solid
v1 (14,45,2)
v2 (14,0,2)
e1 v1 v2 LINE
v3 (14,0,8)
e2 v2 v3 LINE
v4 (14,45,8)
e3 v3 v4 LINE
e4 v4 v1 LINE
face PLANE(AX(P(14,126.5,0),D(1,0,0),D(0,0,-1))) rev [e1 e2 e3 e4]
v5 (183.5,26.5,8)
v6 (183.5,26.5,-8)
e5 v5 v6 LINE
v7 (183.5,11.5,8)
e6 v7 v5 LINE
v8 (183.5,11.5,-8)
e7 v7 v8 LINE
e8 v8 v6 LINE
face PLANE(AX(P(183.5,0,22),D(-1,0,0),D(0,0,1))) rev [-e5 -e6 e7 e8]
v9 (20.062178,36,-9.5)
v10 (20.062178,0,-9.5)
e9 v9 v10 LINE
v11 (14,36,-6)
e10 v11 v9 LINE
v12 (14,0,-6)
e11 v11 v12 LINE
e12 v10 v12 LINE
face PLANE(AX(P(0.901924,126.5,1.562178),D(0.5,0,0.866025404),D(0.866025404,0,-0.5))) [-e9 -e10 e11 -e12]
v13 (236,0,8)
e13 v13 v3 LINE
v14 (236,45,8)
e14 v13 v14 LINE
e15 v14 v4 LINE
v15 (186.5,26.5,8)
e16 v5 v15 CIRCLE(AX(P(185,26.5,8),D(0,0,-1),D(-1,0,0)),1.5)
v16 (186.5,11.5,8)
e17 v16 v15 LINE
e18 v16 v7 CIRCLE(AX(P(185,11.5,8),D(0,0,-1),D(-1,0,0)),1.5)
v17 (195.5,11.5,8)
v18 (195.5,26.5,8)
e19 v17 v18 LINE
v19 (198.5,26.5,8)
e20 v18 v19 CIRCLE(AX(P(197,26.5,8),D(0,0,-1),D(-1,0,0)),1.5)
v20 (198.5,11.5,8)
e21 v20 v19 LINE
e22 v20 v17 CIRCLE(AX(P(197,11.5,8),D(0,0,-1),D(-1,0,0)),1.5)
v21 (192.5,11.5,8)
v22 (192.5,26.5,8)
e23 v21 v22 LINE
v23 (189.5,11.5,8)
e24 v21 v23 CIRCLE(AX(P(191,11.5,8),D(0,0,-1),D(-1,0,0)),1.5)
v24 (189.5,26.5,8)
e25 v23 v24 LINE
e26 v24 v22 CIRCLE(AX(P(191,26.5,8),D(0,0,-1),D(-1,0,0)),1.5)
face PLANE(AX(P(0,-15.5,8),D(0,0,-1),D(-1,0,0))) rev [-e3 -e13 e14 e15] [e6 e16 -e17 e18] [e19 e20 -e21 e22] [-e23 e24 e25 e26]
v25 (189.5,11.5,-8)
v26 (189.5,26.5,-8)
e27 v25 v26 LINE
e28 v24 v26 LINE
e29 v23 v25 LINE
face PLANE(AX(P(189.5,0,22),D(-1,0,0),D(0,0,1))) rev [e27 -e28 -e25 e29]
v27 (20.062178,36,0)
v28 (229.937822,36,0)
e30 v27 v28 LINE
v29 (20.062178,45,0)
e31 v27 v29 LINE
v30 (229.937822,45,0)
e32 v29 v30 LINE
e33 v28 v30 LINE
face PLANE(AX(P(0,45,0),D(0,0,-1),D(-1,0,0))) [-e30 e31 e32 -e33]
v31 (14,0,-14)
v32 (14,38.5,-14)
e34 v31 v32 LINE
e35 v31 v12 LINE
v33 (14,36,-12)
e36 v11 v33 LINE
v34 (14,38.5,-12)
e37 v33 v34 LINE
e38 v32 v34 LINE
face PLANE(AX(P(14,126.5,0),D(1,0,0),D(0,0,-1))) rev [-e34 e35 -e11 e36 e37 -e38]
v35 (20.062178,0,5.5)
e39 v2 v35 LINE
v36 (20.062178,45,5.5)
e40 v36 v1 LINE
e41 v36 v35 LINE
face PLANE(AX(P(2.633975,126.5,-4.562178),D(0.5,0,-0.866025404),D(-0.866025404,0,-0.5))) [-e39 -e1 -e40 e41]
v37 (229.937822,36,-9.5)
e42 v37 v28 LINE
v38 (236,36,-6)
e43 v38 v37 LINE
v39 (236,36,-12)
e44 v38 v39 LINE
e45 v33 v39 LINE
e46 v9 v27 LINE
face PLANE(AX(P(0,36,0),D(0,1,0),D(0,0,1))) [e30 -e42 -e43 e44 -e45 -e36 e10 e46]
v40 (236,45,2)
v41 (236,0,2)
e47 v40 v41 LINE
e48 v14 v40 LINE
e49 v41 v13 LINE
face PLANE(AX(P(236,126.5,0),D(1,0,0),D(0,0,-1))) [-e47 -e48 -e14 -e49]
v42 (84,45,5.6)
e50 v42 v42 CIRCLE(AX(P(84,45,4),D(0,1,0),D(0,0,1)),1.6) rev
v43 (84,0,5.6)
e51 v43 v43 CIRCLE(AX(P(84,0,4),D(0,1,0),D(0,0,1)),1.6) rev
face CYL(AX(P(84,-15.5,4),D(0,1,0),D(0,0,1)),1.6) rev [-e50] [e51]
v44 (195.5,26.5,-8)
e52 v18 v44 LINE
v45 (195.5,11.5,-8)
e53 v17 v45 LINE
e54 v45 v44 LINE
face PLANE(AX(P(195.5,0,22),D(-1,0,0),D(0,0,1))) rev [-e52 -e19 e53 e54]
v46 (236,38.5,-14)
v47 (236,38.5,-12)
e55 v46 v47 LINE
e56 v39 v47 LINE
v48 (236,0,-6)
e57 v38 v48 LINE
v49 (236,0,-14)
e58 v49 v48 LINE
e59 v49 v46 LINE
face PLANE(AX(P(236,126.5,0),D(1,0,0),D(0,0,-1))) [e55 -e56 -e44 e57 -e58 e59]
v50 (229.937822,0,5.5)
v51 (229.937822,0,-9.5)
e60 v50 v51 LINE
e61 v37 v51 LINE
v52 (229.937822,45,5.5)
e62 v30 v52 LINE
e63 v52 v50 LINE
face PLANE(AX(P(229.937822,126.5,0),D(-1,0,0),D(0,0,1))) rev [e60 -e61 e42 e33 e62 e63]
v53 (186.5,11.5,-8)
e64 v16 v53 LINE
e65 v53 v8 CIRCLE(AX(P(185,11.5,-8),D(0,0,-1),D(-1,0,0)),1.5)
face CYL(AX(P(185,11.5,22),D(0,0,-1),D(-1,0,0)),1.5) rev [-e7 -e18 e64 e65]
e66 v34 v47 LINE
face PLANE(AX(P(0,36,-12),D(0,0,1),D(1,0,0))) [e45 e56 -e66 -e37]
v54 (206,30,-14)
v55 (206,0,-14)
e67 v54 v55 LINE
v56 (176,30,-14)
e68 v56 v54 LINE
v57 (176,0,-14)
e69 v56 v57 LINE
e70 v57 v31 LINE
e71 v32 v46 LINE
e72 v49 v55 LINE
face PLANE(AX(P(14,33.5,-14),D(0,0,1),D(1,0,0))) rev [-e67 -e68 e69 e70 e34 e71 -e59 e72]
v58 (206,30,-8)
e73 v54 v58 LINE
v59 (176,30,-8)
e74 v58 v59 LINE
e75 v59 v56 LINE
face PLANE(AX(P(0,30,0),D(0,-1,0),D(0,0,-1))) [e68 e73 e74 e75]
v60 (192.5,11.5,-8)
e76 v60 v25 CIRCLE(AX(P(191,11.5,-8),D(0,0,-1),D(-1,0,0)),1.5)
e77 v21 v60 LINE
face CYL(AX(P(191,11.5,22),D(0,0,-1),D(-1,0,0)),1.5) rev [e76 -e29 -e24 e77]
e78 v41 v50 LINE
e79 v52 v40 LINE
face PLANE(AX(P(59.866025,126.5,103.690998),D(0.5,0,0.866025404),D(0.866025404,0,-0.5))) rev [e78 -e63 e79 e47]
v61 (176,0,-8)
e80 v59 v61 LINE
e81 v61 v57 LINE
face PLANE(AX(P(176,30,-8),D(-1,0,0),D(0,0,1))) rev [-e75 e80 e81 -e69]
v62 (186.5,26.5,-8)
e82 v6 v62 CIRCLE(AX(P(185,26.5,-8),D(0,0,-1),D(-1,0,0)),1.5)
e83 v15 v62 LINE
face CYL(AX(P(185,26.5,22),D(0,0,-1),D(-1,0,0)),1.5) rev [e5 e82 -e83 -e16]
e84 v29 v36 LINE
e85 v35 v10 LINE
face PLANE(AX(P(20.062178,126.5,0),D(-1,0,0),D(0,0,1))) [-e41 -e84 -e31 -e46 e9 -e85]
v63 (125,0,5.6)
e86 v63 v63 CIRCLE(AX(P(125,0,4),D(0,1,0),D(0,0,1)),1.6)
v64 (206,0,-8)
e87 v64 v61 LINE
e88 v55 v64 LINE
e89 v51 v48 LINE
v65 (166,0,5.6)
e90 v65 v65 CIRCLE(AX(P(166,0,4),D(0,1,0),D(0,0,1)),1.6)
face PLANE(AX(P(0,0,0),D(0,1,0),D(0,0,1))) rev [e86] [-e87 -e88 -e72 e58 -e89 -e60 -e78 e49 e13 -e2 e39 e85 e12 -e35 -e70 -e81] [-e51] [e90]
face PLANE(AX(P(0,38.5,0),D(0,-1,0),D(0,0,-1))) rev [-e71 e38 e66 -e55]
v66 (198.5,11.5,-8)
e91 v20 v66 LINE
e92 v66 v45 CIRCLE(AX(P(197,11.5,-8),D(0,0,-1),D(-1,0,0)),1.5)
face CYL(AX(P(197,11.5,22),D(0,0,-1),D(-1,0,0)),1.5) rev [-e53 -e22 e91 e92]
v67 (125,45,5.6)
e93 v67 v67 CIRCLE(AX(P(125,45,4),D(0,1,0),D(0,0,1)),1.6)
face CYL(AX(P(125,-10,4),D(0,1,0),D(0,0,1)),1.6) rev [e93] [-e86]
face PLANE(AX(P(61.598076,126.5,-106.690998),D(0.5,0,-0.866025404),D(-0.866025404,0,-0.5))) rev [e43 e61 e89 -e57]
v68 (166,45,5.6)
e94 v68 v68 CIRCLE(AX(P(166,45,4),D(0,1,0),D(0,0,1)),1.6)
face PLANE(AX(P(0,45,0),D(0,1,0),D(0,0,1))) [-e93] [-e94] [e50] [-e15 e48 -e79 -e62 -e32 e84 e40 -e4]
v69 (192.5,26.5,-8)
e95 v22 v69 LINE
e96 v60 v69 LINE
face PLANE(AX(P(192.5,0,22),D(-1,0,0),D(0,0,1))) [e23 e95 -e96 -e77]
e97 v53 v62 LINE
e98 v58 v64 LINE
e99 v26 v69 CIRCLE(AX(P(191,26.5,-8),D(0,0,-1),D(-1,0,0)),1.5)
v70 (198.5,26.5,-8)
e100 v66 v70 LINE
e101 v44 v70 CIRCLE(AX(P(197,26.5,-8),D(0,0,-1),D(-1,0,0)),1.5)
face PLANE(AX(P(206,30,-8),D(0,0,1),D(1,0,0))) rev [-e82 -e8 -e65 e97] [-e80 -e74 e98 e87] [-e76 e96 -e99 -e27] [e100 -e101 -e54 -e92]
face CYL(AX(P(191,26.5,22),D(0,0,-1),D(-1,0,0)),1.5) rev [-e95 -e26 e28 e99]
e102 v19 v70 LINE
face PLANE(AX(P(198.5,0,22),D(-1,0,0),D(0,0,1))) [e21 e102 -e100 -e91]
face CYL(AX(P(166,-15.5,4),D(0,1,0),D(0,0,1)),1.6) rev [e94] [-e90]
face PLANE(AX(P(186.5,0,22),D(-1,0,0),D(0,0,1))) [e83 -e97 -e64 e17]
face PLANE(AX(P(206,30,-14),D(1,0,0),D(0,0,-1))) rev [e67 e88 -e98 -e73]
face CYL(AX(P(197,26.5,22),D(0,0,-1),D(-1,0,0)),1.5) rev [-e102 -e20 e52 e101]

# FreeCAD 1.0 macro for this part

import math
import FreeCAD as App
import Part
import Sketcher

V = App.Vector
Q = App.Units.Quantity


def edges_at(feature, points):
    """Names of the edges that pass closest to the given points."""
    edges = feature.Shape.Edges
    near = lambda p: min(range(len(edges)), key=lambda i: edges[i].distToShape(Part.Vertex(*p))[0])
    return sorted({f"Edge{near(p) + 1}" for p in points})


def add_polygon(sketch, points):
    """Adds a closed chain of lines whose ends are joined by coincident constraints."""
    first, n = sketch.GeometryCount, len(points)
    for a, b in zip(points, points[1:] + points[:1]):
        sketch.addGeometry(Part.LineSegment(App.Vector(*a, 0), App.Vector(*b, 0)), False)
    for i in range(n):
        sketch.addConstraint(Sketcher.Constraint("Coincident", first + i, 2, first + (i + 1) % n, 1))

doc = App.newDocument("Part")
params = doc.addObject("Spreadsheet::Sheet", "Params")
for row, (alias, value) in enumerate([
    ("sketch1_width", "270 mm"),
    ("sketch1_width2", "250 mm"),
    ("sketch1_height", "370 mm"),
    ("sketch1_height2", "350 mm"),
    ("pad1_length", "45 mm"),
    ("sketch2_width", "250 mm"),
    ("sketch2_width2", "222 mm"),
    ("sketch2_height", "350 mm"),
    ("sketch2_height2", "322 mm"),
    ("pad2_length", "5 mm"),
    ("sketch3_width", "246 mm"),
    ("sketch3_width2", "226 mm"),
    ("sketch3_height", "346 mm"),
    ("sketch3_height2", "326 mm"),
    ("pocket1_length", "2.5 mm"),
    ("sketch4_diameter", "3.2 mm"),
    ("pocket2_length", "109.5 mm"),
    ("fillet_radius", "5 mm"),
    ("sketch5_width", "250 mm"),
    ("sketch5_width2", "222 mm"),
    ("sketch5_height", "350 mm"),
    ("sketch5_height2", "322 mm"),
    ("pad3_length", "33.5 mm"),
    ("sketch6_radius", "5 mm"),
    ("sketch6_width", "19 mm"),
    ("sketch6_width2", "260 mm"),
    ("sketch6_height", "330 mm"),
    ("sketch6_height2", "15 mm"),
    ("pocket3_length", "126.5 mm"),
    ("sketch7_height", "2 mm"),
    ("pocket4_length", "2.5 mm"),
    ("sketch8_width", "222 mm"),
    ("sketch8_height", "2 mm"),
    ("pocket5_length", "60.5 mm"),
    ("sketch9_diameter", "3.2 mm"),
    ("pocket6_length", "60.5 mm"),
    ("sketch10_width", "30 mm"),
    ("sketch10_height", "6 mm"),
    ("pocket7_length", "30 mm"),
    ("sketch11_radius", "1.5 mm"),
    ("sketch11_height", "15 mm"),
    ("pocket8_length", "30 mm"),
    ("sketch12_radius", "1.6 mm"),
    ("pocket9_length", "55 mm"),
], start=1):
    params.set(f"A{row}", alias)
    params.set(f"B{row}", "=" + value)
    params.setAlias(f"B{row}", alias)

body = doc.addObject("PartDesign::Body", "Body")

# Sketch on XZ plane
sketch1 = doc.addObject("Sketcher::SketchObject", "Sketch")
body.addObject(sketch1)
sketch1.AttachmentSupport = (doc.XZ_Plane, [""])
sketch1.MapMode = "FlatFace"
add_polygon(sketch1, [(-10, -360), (-10, 10), (260, 10), (260, -360)])  # lines 0-3
add_polygon(sketch1, [(250, 0), (0, 0), (0, -350), (250, -350)])  # lines 4-7
sketch1.addConstraint(Sketcher.Constraint("Vertical", 0))
sketch1.addConstraint(Sketcher.Constraint("Horizontal", 1))
sketch1.addConstraint(Sketcher.Constraint("Vertical", 2))
sketch1.addConstraint(Sketcher.Constraint("Horizontal", 3))
sketch1.addConstraint(Sketcher.Constraint("Horizontal", 4))
sketch1.addConstraint(Sketcher.Constraint("Vertical", 5))
sketch1.addConstraint(Sketcher.Constraint("Horizontal", 6))
sketch1.addConstraint(Sketcher.Constraint("Vertical", 7))
sketch1.addConstraint(Sketcher.Constraint("Coincident", 4, 2, -1, 1))
sketch1.addConstraint(Sketcher.Constraint("DistanceX", 1, 1, 1, 2, 270.0))
sketch1.addConstraint(Sketcher.Constraint("DistanceX", 4, 2, 4, 1, 250.0))
sketch1.addConstraint(Sketcher.Constraint("DistanceY", 0, 1, 0, 2, 370.0))
sketch1.addConstraint(Sketcher.Constraint("DistanceY", 5, 2, 5, 1, 350.0))
sketch1.addConstraint(Sketcher.Constraint("DistanceX", 0, 2, -1, 1, 10.0))
sketch1.addConstraint(Sketcher.Constraint("DistanceY", -1, 1, 0, 2, 10.0))
sketch1.setExpression("Constraints[17]", "Params.sketch1_width")
sketch1.setExpression("Constraints[18]", "Params.sketch1_width2")
sketch1.setExpression("Constraints[19]", "Params.sketch1_height")
sketch1.setExpression("Constraints[20]", "Params.sketch1_height2")
pad1 = doc.addObject("PartDesign::Pad", "Pad")
body.addObject(pad1)
pad1.Profile = sketch1
pad1.setExpression("Length", "Params.pad1_length")
pad1.Reversed = True

# Sketch on XZ plane
sketch2 = doc.addObject("Sketcher::SketchObject", "Sketch001")
body.addObject(sketch2)
sketch2.AttachmentSupport = (doc.XZ_Plane, [""])
sketch2.MapMode = "FlatFace"
sketch2.AttachmentOffset = App.Placement(V(0, 0, -38.5), App.Rotation())
add_polygon(sketch2, [(0, -350), (0, 0), (250, 0), (250, -350)])  # lines 0-3
add_polygon(sketch2, [(236, -14), (14, -14), (14, -336), (236, -336)])  # lines 4-7
sketch2.addConstraint(Sketcher.Constraint("Vertical", 0))
sketch2.addConstraint(Sketcher.Constraint("Horizontal", 1))
sketch2.addConstraint(Sketcher.Constraint("Vertical", 2))
sketch2.addConstraint(Sketcher.Constraint("Horizontal", 3))
sketch2.addConstraint(Sketcher.Constraint("Horizontal", 4))
sketch2.addConstraint(Sketcher.Constraint("Vertical", 5))
sketch2.addConstraint(Sketcher.Constraint("Horizontal", 6))
sketch2.addConstraint(Sketcher.Constraint("Vertical", 7))
sketch2.addConstraint(Sketcher.Constraint("Coincident", 0, 2, -1, 1))
sketch2.addConstraint(Sketcher.Constraint("DistanceX", 1, 1, 1, 2, 250.0))
sketch2.addConstraint(Sketcher.Constraint("DistanceX", 4, 2, 4, 1, 222.0))
sketch2.addConstraint(Sketcher.Constraint("DistanceY", 0, 1, 0, 2, 350.0))
sketch2.addConstraint(Sketcher.Constraint("DistanceY", 5, 2, 5, 1, 322.0))
sketch2.addConstraint(Sketcher.Constraint("DistanceX", -1, 1, 4, 2, 14.0))
sketch2.addConstraint(Sketcher.Constraint("DistanceY", 4, 2, -1, 1, 14.0))
sketch2.setExpression("Constraints[17]", "Params.sketch2_width")
sketch2.setExpression("Constraints[18]", "Params.sketch2_width2")
sketch2.setExpression("Constraints[19]", "Params.sketch2_height")
sketch2.setExpression("Constraints[20]", "Params.sketch2_height2")
pad2 = doc.addObject("PartDesign::Pad", "Pad001")
body.addObject(pad2)
pad2.Profile = sketch2
pad2.setExpression("Length", "Params.pad2_length")

# Sketch on XZ plane
sketch3 = doc.addObject("Sketcher::SketchObject", "Sketch002")
body.addObject(sketch3)
sketch3.AttachmentSupport = (doc.XZ_Plane, [""])
sketch3.MapMode = "FlatFace"
sketch3.AttachmentOffset = App.Placement(V(0, 0, -38.5), App.Rotation())
add_polygon(sketch3, [(2, -348), (2, -2), (248, -2), (248, -348)])  # lines 0-3
add_polygon(sketch3, [(238, -12), (12, -12), (12, -338), (238, -338)])  # lines 4-7
sketch3.addConstraint(Sketcher.Constraint("Vertical", 0))
sketch3.addConstraint(Sketcher.Constraint("Horizontal", 1))
sketch3.addConstraint(Sketcher.Constraint("Vertical", 2))
sketch3.addConstraint(Sketcher.Constraint("Horizontal", 3))
sketch3.addConstraint(Sketcher.Constraint("Horizontal", 4))
sketch3.addConstraint(Sketcher.Constraint("Vertical", 5))
sketch3.addConstraint(Sketcher.Constraint("Horizontal", 6))
sketch3.addConstraint(Sketcher.Constraint("Vertical", 7))
sketch3.addConstraint(Sketcher.Constraint("DistanceX", 1, 1, 1, 2, 246.0))
sketch3.addConstraint(Sketcher.Constraint("DistanceX", 4, 2, 4, 1, 226.0))
sketch3.addConstraint(Sketcher.Constraint("DistanceY", 0, 1, 0, 2, 346.0))
sketch3.addConstraint(Sketcher.Constraint("DistanceY", 5, 2, 5, 1, 326.0))
sketch3.addConstraint(Sketcher.Constraint("DistanceX", -1, 1, 0, 2, 2.0))
sketch3.addConstraint(Sketcher.Constraint("DistanceY", 0, 2, -1, 1, 2.0))
sketch3.addConstraint(Sketcher.Constraint("DistanceX", -1, 1, 4, 2, 12.0))
sketch3.addConstraint(Sketcher.Constraint("DistanceY", 4, 2, -1, 1, 12.0))
sketch3.setExpression("Constraints[16]", "Params.sketch3_width")
sketch3.setExpression("Constraints[17]", "Params.sketch3_width2")
sketch3.setExpression("Constraints[18]", "Params.sketch3_height")
sketch3.setExpression("Constraints[19]", "Params.sketch3_height2")
pocket1 = doc.addObject("PartDesign::Pocket", "Pocket")
body.addObject(pocket1)
pocket1.Profile = sketch3
pocket1.setExpression("Length", "Params.pocket1_length")
pocket1.Reversed = True

# Sketch on XZ plane
sketch4 = doc.addObject("Sketcher::SketchObject", "Sketch003")
body.addObject(sketch4)
sketch4.AttachmentSupport = (doc.XZ_Plane, [""])
sketch4.MapMode = "FlatFace"
sketch4.AttachmentOffset = App.Placement(V(0, 0, -45), App.Rotation())
sketch4.addGeometry(Part.Circle(V(-5, 5, 0), V(0, 0, 1), 1.6), False)
sketch4.addGeometry(Part.ArcOfCircle(Part.Circle(V(-5, -355, 0), V(0, 0, 1), 1.6), math.radians(45), math.radians(225)), False)
sketch4.addGeometry(Part.ArcOfCircle(Part.Circle(V(-5, -355, 0), V(0, 0, 1), 1.6), math.radians(0), math.radians(45)), False)
sketch4.addGeometry(Part.ArcOfCircle(Part.Circle(V(-5, -355, 0), V(0, 0, 1), 1.6), math.radians(-135), math.radians(0)), False)
sketch4.addGeometry(Part.Circle(V(255, -355, 0), V(0, 0, 1), 1.6), False)
sketch4.addGeometry(Part.Circle(V(255, 5, 0), V(0, 0, 1), 1.6), False)
sketch4.addConstraint(Sketcher.Constraint("Tangent", 1, 1, 2, 2))
sketch4.addConstraint(Sketcher.Constraint("Tangent", 2, 1, 3, 2))
sketch4.addConstraint(Sketcher.Constraint("Tangent", 3, 1, 1, 2))
sketch4.addConstraint(Sketcher.Constraint("Equal", 0, 1))
sketch4.addConstraint(Sketcher.Constraint("Equal", 3, 4))
sketch4.addConstraint(Sketcher.Constraint("Equal", 4, 5))
sketch4.addConstraint(Sketcher.Constraint("Horizontal", 3, 3, 4, 3))
sketch4.addConstraint(Sketcher.Constraint("Horizontal", 0, 3, 5, 3))
sketch4.addConstraint(Sketcher.Constraint("Horizontal", 4, 3, 2, 1))
sketch4.addConstraint(Sketcher.Constraint("Vertical", 0, 3, 1, 3))
sketch4.addConstraint(Sketcher.Constraint("Vertical", 4, 3, 5, 3))
sketch4.addConstraint(Sketcher.Constraint("Diameter", 0, 3.2))
sketch4.addConstraint(Sketcher.Constraint("DistanceX", 0, 3, -1, 1, 5.0))
sketch4.addConstraint(Sketcher.Constraint("DistanceY", -1, 1, 0, 3, 5.0))
sketch4.addConstraint(Sketcher.Constraint("DistanceY", 1, 3, -1, 1, 355.0))
sketch4.addConstraint(Sketcher.Constraint("DistanceX", -1, 1, 4, 3, 255.0))
sketch4.addConstraint(Sketcher.Constraint("DistanceX", 1, 1, -1, 1, 3.868629))
sketch4.addConstraint(Sketcher.Constraint("DistanceX", 3, 1, -1, 1, 6.131371))
sketch4.setExpression("Constraints[11]", "Params.sketch4_diameter")
pocket2 = doc.addObject("PartDesign::Pocket", "Pocket001")
body.addObject(pocket2)
pocket2.Profile = sketch4
pocket2.setExpression("Length", "Params.pocket2_length")
pocket2.Reversed = True
doc.recompute()

fillet = doc.addObject("PartDesign::Fillet", "Fillet")
body.addObject(fillet)
fillet.Base = (pocket2, edges_at(pocket2, [
    (-10, 22.5, 10),
    (-10, 22.5, -360),
    (260, 22.5, -360),
    (260, 22.5, 10),
]))
fillet.setExpression("Radius", "Params.fillet_radius")

# Sketch on XZ plane
sketch5 = doc.addObject("Sketcher::SketchObject", "Sketch004")
body.addObject(sketch5)
sketch5.AttachmentSupport = (doc.XZ_Plane, [""])
sketch5.MapMode = "FlatFace"
sketch5.AttachmentOffset = App.Placement(V(0, 0, -33.5), App.Rotation())
add_polygon(sketch5, [(0, 0), (0, -350), (250, -350), (250, 0)])  # lines 0-3
add_polygon(sketch5, [(236, -336), (14, -336), (14, -14), (236, -14)])  # lines 4-7
sketch5.addConstraint(Sketcher.Constraint("Vertical", 0))
sketch5.addConstraint(Sketcher.Constraint("Horizontal", 1))
sketch5.addConstraint(Sketcher.Constraint("Vertical", 2))
sketch5.addConstraint(Sketcher.Constraint("Horizontal", 3))
sketch5.addConstraint(Sketcher.Constraint("Horizontal", 4))
sketch5.addConstraint(Sketcher.Constraint("Vertical", 5))
sketch5.addConstraint(Sketcher.Constraint("Horizontal", 6))
sketch5.addConstraint(Sketcher.Constraint("Vertical", 7))
sketch5.addConstraint(Sketcher.Constraint("Coincident", 3, 2, -1, 1))
sketch5.addConstraint(Sketcher.Constraint("DistanceX", 1, 1, 1, 2, 250.0))
sketch5.addConstraint(Sketcher.Constraint("DistanceX", 4, 2, 4, 1, 222.0))
sketch5.addConstraint(Sketcher.Constraint("DistanceY", 0, 2, 0, 1, 350.0))
sketch5.addConstraint(Sketcher.Constraint("DistanceY", 5, 1, 5, 2, 322.0))
sketch5.addConstraint(Sketcher.Constraint("DistanceX", -1, 1, 4, 2, 14.0))
sketch5.addConstraint(Sketcher.Constraint("DistanceY", 4, 2, -1, 1, 336.0))
sketch5.setExpression("Constraints[17]", "Params.sketch5_width")
sketch5.setExpression("Constraints[18]", "Params.sketch5_width2")
sketch5.setExpression("Constraints[19]", "Params.sketch5_height")
sketch5.setExpression("Constraints[20]", "Params.sketch5_height2")
pad3 = doc.addObject("PartDesign::Pad", "Pad002")
body.addObject(pad3)
pad3.Profile = sketch5
pad3.setExpression("Length", "Params.pad3_length")

# Sketch on XZ plane
sketch6 = doc.addObject("Sketcher::SketchObject", "Sketch005")
body.addObject(sketch6)
sketch6.AttachmentSupport = (doc.XZ_Plane, [""])
sketch6.MapMode = "FlatFace"
sketch6.AttachmentOffset = App.Placement(V(0, 0, -126.5), App.Rotation())
sketch6.addGeometry(Part.LineSegment(V(14, -336, 0), V(14, -6, 0)), False)
sketch6.addGeometry(Part.LineSegment(V(14, -6, 0), V(20.062178, -9.5, 0)), False)
sketch6.addGeometry(Part.LineSegment(V(20.062178, -9.5, 0), V(20.062178, 5.5, 0)), False)
sketch6.addGeometry(Part.LineSegment(V(20.062178, 5.5, 0), V(14, 2, 0)), False)
sketch6.addGeometry(Part.LineSegment(V(14, 2, 0), V(14, 10, 0)), False)
sketch6.addGeometry(Part.LineSegment(V(14, 10, 0), V(-5, 10, 0)), False)
sketch6.addGeometry(Part.ArcOfCircle(Part.Circle(V(-5, 5, 0), V(0, 0, 1), 5), math.radians(90), math.radians(180)), False)
sketch6.addGeometry(Part.LineSegment(V(-10, 5, 0), V(-10, -355, 0)), False)
sketch6.addGeometry(Part.ArcOfCircle(Part.Circle(V(-5, -355, 0), V(0, 0, 1), 5), math.radians(180), math.radians(270)), False)
sketch6.addGeometry(Part.LineSegment(V(-5, -360, 0), V(255, -360, 0)), False)
sketch6.addGeometry(Part.ArcOfCircle(Part.Circle(V(255, -355, 0), V(0, 0, 1), 5), math.radians(-90), math.radians(0)), False)
sketch6.addGeometry(Part.LineSegment(V(260, -355, 0), V(260, 5, 0)), False)
sketch6.addGeometry(Part.ArcOfCircle(Part.Circle(V(255, 5, 0), V(0, 0, 1), 5), math.radians(0), math.radians(90)), False)
sketch6.addGeometry(Part.LineSegment(V(255, 10, 0), V(236, 10, 0)), False)
sketch6.addGeometry(Part.LineSegment(V(236, 10, 0), V(236, 2, 0)), False)
sketch6.addGeometry(Part.LineSegment(V(236, 2, 0), V(229.937822, 5.5, 0)), False)
sketch6.addGeometry(Part.LineSegment(V(229.937822, 5.5, 0), V(229.937822, -9.5, 0)), False)
sketch6.addGeometry(Part.LineSegment(V(229.937822, -9.5, 0), V(236, -6, 0)), False)
sketch6.addGeometry(Part.LineSegment(V(236, -6, 0), V(236, -336, 0)), False)
sketch6.addGeometry(Part.LineSegment(V(236, -336, 0), V(14, -336, 0)), False)
sketch6.addConstraint(Sketcher.Constraint("Coincident", 0, 2, 1, 1))
sketch6.addConstraint(Sketcher.Constraint("Coincident", 1, 2, 2, 1))
sketch6.addConstraint(Sketcher.Constraint("Coincident", 2, 2, 3, 1))
sketch6.addConstraint(Sketcher.Constraint("Coincident", 3, 2, 4, 1))
sketch6.addConstraint(Sketcher.Constraint("Coincident", 4, 2, 5, 1))
sketch6.addConstraint(Sketcher.Constraint("Tangent", 5, 2, 6, 1))
sketch6.addConstraint(Sketcher.Constraint("Tangent", 6, 2, 7, 1))
sketch6.addConstraint(Sketcher.Constraint("Tangent", 7, 2, 8, 1))
sketch6.addConstraint(Sketcher.Constraint("Tangent", 8, 2, 9, 1))
sketch6.addConstraint(Sketcher.Constraint("Tangent", 9, 2, 10, 1))
sketch6.addConstraint(Sketcher.Constraint("Tangent", 10, 2, 11, 1))
sketch6.addConstraint(Sketcher.Constraint("Tangent", 11, 2, 12, 1))
sketch6.addConstraint(Sketcher.Constraint("Tangent", 12, 2, 13, 1))
sketch6.addConstraint(Sketcher.Constraint("Coincident", 13, 2, 14, 1))
sketch6.addConstraint(Sketcher.Constraint("Coincident", 14, 2, 15, 1))
sketch6.addConstraint(Sketcher.Constraint("Coincident", 15, 2, 16, 1))
sketch6.addConstraint(Sketcher.Constraint("Coincident", 16, 2, 17, 1))
sketch6.addConstraint(Sketcher.Constraint("Coincident", 17, 2, 18, 1))
sketch6.addConstraint(Sketcher.Constraint("Coincident", 18, 2, 19, 1))
sketch6.addConstraint(Sketcher.Constraint("Coincident", 19, 2, 0, 1))
sketch6.addConstraint(Sketcher.Constraint("Vertical", 0))
sketch6.addConstraint(Sketcher.Constraint("Vertical", 2))
sketch6.addConstraint(Sketcher.Constraint("Vertical", 4))
sketch6.addConstraint(Sketcher.Constraint("Horizontal", 5))
sketch6.addConstraint(Sketcher.Constraint("Vertical", 7))
sketch6.addConstraint(Sketcher.Constraint("Horizontal", 9))
sketch6.addConstraint(Sketcher.Constraint("Vertical", 11))
sketch6.addConstraint(Sketcher.Constraint("Horizontal", 13))
sketch6.addConstraint(Sketcher.Constraint("Vertical", 14))
sketch6.addConstraint(Sketcher.Constraint("Vertical", 16))
sketch6.addConstraint(Sketcher.Constraint("Vertical", 18))
sketch6.addConstraint(Sketcher.Constraint("Horizontal", 19))
sketch6.addConstraint(Sketcher.Constraint("Equal", 6, 8))
sketch6.addConstraint(Sketcher.Constraint("Equal", 8, 10))
sketch6.addConstraint(Sketcher.Constraint("Equal", 10, 12))
sketch6.addConstraint(Sketcher.Constraint("Parallel", 1, 15))
sketch6.addConstraint(Sketcher.Constraint("Parallel", 3, 17))
sketch6.addConstraint(Sketcher.Constraint("Horizontal", 6, 3, 12, 3))
sketch6.addConstraint(Sketcher.Constraint("Horizontal", 3, 2, 14, 2))
sketch6.addConstraint(Sketcher.Constraint("Horizontal", 2, 2, 15, 2))
sketch6.addConstraint(Sketcher.Constraint("Horizontal", 1, 2, 16, 2))
sketch6.addConstraint(Sketcher.Constraint("Horizontal", 0, 2, 17, 2))
sketch6.addConstraint(Sketcher.Constraint("Vertical", 0, 2, 3, 2))
sketch6.addConstraint(Sketcher.Constraint("Vertical", 14, 2, 17, 2))
sketch6.addConstraint(Sketcher.Constraint("Equal", 5, 13))
sketch6.addConstraint(Sketcher.Constraint("Radius", 6, 5.0))
sketch6.addConstraint(Sketcher.Constraint("DistanceX", 5, 2, 5, 1, 19.0))
sketch6.addConstraint(Sketcher.Constraint("DistanceX", 9, 1, 9, 2, 260.0))
sketch6.addConstraint(Sketcher.Constraint("DistanceY", 0, 1, 0, 2, 330.0))
sketch6.addConstraint(Sketcher.Constraint("DistanceY", 2, 1, 2, 2, 15.0))
sketch6.addConstraint(Sketcher.Constraint("DistanceY", 4, 1, 4, 2, 8.0))
sketch6.addConstraint(Sketcher.Constraint("DistanceY", 7, 2, 7, 1, 360.0))
sketch6.addConstraint(Sketcher.Constraint("Angle", 1, Q("-30 deg")))
sketch6.addConstraint(Sketcher.Constraint("Distance", 1, 7.0))
sketch6.addConstraint(Sketcher.Constraint("DistanceX", 6, 3, -1, 1, 5.0))
sketch6.addConstraint(Sketcher.Constraint("DistanceY", -1, 1, 6, 3, 5.0))
sketch6.setExpression("Constraints[45]", "Params.sketch6_radius")
sketch6.setExpression("Constraints[46]", "Params.sketch6_width")
sketch6.setExpression("Constraints[47]", "Params.sketch6_width2")
sketch6.setExpression("Constraints[48]", "Params.sketch6_height")
sketch6.setExpression("Constraints[49]", "Params.sketch6_height2")
pocket3 = doc.addObject("PartDesign::Pocket", "Pocket002")
body.addObject(pocket3)
pocket3.Profile = sketch6
pocket3.setExpression("Length", "Params.pocket3_length")
pocket3.Reversed = True

# Sketch on XZ plane
sketch7 = doc.addObject("Sketcher::SketchObject", "Sketch006")
body.addObject(sketch7)
sketch7.AttachmentSupport = (doc.XZ_Plane, [""])
sketch7.MapMode = "FlatFace"
sketch7.AttachmentOffset = App.Placement(V(0, 0, -38.5), App.Rotation())
add_polygon(sketch7, [(20.062178, -2), (20.062178, 0), (229.937822, 0), (229.937822, -2)])  # lines 0-3
sketch7.addConstraint(Sketcher.Constraint("Vertical", 0))
sketch7.addConstraint(Sketcher.Constraint("Horizontal", 1))
sketch7.addConstraint(Sketcher.Constraint("Vertical", 2))
sketch7.addConstraint(Sketcher.Constraint("Horizontal", 3))
sketch7.addConstraint(Sketcher.Constraint("PointOnObject", 0, 2, -1))
sketch7.addConstraint(Sketcher.Constraint("DistanceY", 0, 1, 0, 2, 2.0))
sketch7.addConstraint(Sketcher.Constraint("DistanceX", 1, 1, 1, 2, 209.875644))
sketch7.addConstraint(Sketcher.Constraint("DistanceX", -1, 1, 0, 2, 20.062178))
sketch7.setExpression("Constraints[9]", "Params.sketch7_height")
pocket4 = doc.addObject("PartDesign::Pocket", "Pocket003")
body.addObject(pocket4)
pocket4.Profile = sketch7
pocket4.setExpression("Length", "Params.pocket4_length")
pocket4.Reversed = True

# Sketch on XZ plane
sketch8 = doc.addObject("Sketcher::SketchObject", "Sketch007")
body.addObject(sketch8)
sketch8.AttachmentSupport = (doc.XZ_Plane, [""])
sketch8.MapMode = "FlatFace"
sketch8.AttachmentOffset = App.Placement(V(0, 0, -45), App.Rotation())
add_polygon(sketch8, [(236, 10), (236, 8), (14, 8), (14, 10)])  # lines 0-3
sketch8.addConstraint(Sketcher.Constraint("Vertical", 0))
sketch8.addConstraint(Sketcher.Constraint("Horizontal", 1))
sketch8.addConstraint(Sketcher.Constraint("Vertical", 2))
sketch8.addConstraint(Sketcher.Constraint("Horizontal", 3))
sketch8.addConstraint(Sketcher.Constraint("DistanceX", 1, 2, 1, 1, 222.0))
sketch8.addConstraint(Sketcher.Constraint("DistanceY", 0, 2, 0, 1, 2.0))
sketch8.addConstraint(Sketcher.Constraint("DistanceX", -1, 1, 0, 2, 236.0))
sketch8.addConstraint(Sketcher.Constraint("DistanceY", -1, 1, 0, 2, 8.0))
sketch8.setExpression("Constraints[8]", "Params.sketch8_width")
sketch8.setExpression("Constraints[9]", "Params.sketch8_height")
pocket5 = doc.addObject("PartDesign::Pocket", "Pocket004")
body.addObject(pocket5)
pocket5.Profile = sketch8
pocket5.setExpression("Length", "Params.pocket5_length")
pocket5.Reversed = True

# Sketch on XZ plane
sketch9 = doc.addObject("Sketcher::SketchObject", "Sketch008")
body.addObject(sketch9)
sketch9.AttachmentSupport = (doc.XZ_Plane, [""])
sketch9.MapMode = "FlatFace"
sketch9.AttachmentOffset = App.Placement(V(0, 0, -45), App.Rotation())
sketch9.addGeometry(Part.Circle(V(166, 4, 0), V(0, 0, 1), 1.6), False)
sketch9.addGeometry(Part.Circle(V(84, 4, 0), V(0, 0, 1), 1.6), False)
sketch9.addConstraint(Sketcher.Constraint("Equal", 0, 1))
sketch9.addConstraint(Sketcher.Constraint("Horizontal", 0, 3, 1, 3))
sketch9.addConstraint(Sketcher.Constraint("Diameter", 0, 3.2))
sketch9.addConstraint(Sketcher.Constraint("DistanceX", -1, 1, 0, 3, 166.0))
sketch9.addConstraint(Sketcher.Constraint("DistanceY", -1, 1, 0, 3, 4.0))
sketch9.addConstraint(Sketcher.Constraint("DistanceX", -1, 1, 1, 3, 84.0))
sketch9.setExpression("Constraints[2]", "Params.sketch9_diameter")
pocket6 = doc.addObject("PartDesign::Pocket", "Pocket005")
body.addObject(pocket6)
pocket6.Profile = sketch9
pocket6.setExpression("Length", "Params.pocket6_length")
pocket6.Reversed = True

# Sketch on XZ plane
sketch10 = doc.addObject("Sketcher::SketchObject", "Sketch009")
body.addObject(sketch10)
sketch10.AttachmentSupport = (doc.XZ_Plane, [""])
sketch10.MapMode = "FlatFace"
add_polygon(sketch10, [(176, -8), (176, -14), (206, -14), (206, -8)])  # lines 0-3
sketch10.addConstraint(Sketcher.Constraint("Vertical", 0))
sketch10.addConstraint(Sketcher.Constraint("Horizontal", 1))
sketch10.addConstraint(Sketcher.Constraint("Vertical", 2))
sketch10.addConstraint(Sketcher.Constraint("Horizontal", 3))
sketch10.addConstraint(Sketcher.Constraint("DistanceX", 1, 1, 1, 2, 30.0))
sketch10.addConstraint(Sketcher.Constraint("DistanceY", 0, 2, 0, 1, 6.0))
sketch10.addConstraint(Sketcher.Constraint("DistanceX", -1, 1, 0, 2, 176.0))
sketch10.addConstraint(Sketcher.Constraint("DistanceY", 0, 2, -1, 1, 14.0))
sketch10.setExpression("Constraints[8]", "Params.sketch10_width")
sketch10.setExpression("Constraints[9]", "Params.sketch10_height")
pocket7 = doc.addObject("PartDesign::Pocket", "Pocket006")
body.addObject(pocket7)
pocket7.Profile = sketch10
pocket7.setExpression("Length", "Params.pocket7_length")

# Sketch on XY plane
sketch11 = doc.addObject("Sketcher::SketchObject", "Sketch010")
body.addObject(sketch11)
sketch11.AttachmentSupport = (doc.XY_Plane, [""])
sketch11.MapMode = "FlatFace"
sketch11.AttachmentOffset = App.Placement(V(0, 0, -8), App.Rotation())
sketch11.addGeometry(Part.LineSegment(V(198.5, 26.5, 0), V(198.5, 11.5, 0)), False)
sketch11.addGeometry(Part.ArcOfCircle(Part.Circle(V(197, 11.5, 0), V(0, 0, 1), 1.5), math.radians(180), math.radians(360)), False)
sketch11.addGeometry(Part.LineSegment(V(195.5, 11.5, 0), V(195.5, 26.5, 0)), False)
sketch11.addGeometry(Part.ArcOfCircle(Part.Circle(V(197, 26.5, 0), V(0, 0, 1), 1.5), math.radians(0), math.radians(180)), False)
sketch11.addGeometry(Part.ArcOfCircle(Part.Circle(V(191, 11.5, 0), V(0, 0, 1), 1.5), math.radians(-90), math.radians(0)), False)
sketch11.addGeometry(Part.ArcOfCircle(Part.Circle(V(191, 11.5, 0), V(0, 0, 1), 1.5), math.radians(180), math.radians(270)), False)
sketch11.addGeometry(Part.LineSegment(V(189.5, 11.5, 0), V(189.5, 26.5, 0)), False)
sketch11.addGeometry(Part.ArcOfCircle(Part.Circle(V(191, 26.5, 0), V(0, 0, 1), 1.5), math.radians(90), math.radians(180)), False)
sketch11.addGeometry(Part.ArcOfCircle(Part.Circle(V(191, 26.5, 0), V(0, 0, 1), 1.5), math.radians(0), math.radians(90)), False)
sketch11.addGeometry(Part.LineSegment(V(192.5, 26.5, 0), V(192.5, 11.5, 0)), False)
sketch11.addGeometry(Part.ArcOfCircle(Part.Circle(V(185, 26.5, 0), V(0, 0, 1), 1.5), math.radians(0), math.radians(180)), False)
sketch11.addGeometry(Part.LineSegment(V(186.5, 26.5, 0), V(186.5, 11.5, 0)), False)
sketch11.addGeometry(Part.ArcOfCircle(Part.Circle(V(185, 11.5, 0), V(0, 0, 1), 1.5), math.radians(180), math.radians(360)), False)
sketch11.addGeometry(Part.LineSegment(V(183.5, 11.5, 0), V(183.5, 26.5, 0)), False)
sketch11.addConstraint(Sketcher.Constraint("Tangent", 0, 2, 1, 2))
sketch11.addConstraint(Sketcher.Constraint("Tangent", 1, 1, 2, 1))
sketch11.addConstraint(Sketcher.Constraint("Tangent", 2, 2, 3, 2))
sketch11.addConstraint(Sketcher.Constraint("Tangent", 3, 1, 0, 1))
sketch11.addConstraint(Sketcher.Constraint("Tangent", 4, 1, 5, 2))
sketch11.addConstraint(Sketcher.Constraint("Tangent", 5, 1, 6, 1))
sketch11.addConstraint(Sketcher.Constraint("Tangent", 6, 2, 7, 2))
sketch11.addConstraint(Sketcher.Constraint("Tangent", 7, 1, 8, 2))
sketch11.addConstraint(Sketcher.Constraint("Tangent", 8, 1, 9, 1))
sketch11.addConstraint(Sketcher.Constraint("Tangent", 9, 2, 4, 2))
sketch11.addConstraint(Sketcher.Constraint("Tangent", 10, 1, 11, 1))
sketch11.addConstraint(Sketcher.Constraint("Tangent", 11, 2, 12, 2))
sketch11.addConstraint(Sketcher.Constraint("Tangent", 12, 1, 13, 1))
sketch11.addConstraint(Sketcher.Constraint("Tangent", 13, 2, 10, 2))
sketch11.addConstraint(Sketcher.Constraint("Vertical", 0))
sketch11.addConstraint(Sketcher.Constraint("Vertical", 2))
sketch11.addConstraint(Sketcher.Constraint("Vertical", 6))
sketch11.addConstraint(Sketcher.Constraint("Vertical", 9))
sketch11.addConstraint(Sketcher.Constraint("Vertical", 11))
sketch11.addConstraint(Sketcher.Constraint("Vertical", 13))
sketch11.addConstraint(Sketcher.Constraint("Equal", 3, 4))
sketch11.addConstraint(Sketcher.Constraint("Equal", 4, 5))
sketch11.addConstraint(Sketcher.Constraint("Equal", 5, 7))
sketch11.addConstraint(Sketcher.Constraint("Equal", 8, 10))
sketch11.addConstraint(Sketcher.Constraint("Horizontal", 1, 3, 4, 3))
sketch11.addConstraint(Sketcher.Constraint("Horizontal", 3, 3, 7, 3))
sketch11.addConstraint(Sketcher.Constraint("Horizontal", 8, 3, 10, 3))
sketch11.addConstraint(Sketcher.Constraint("Horizontal", 5, 3, 12, 3))
sketch11.addConstraint(Sketcher.Constraint("Vertical", 8, 3, 4, 1))
sketch11.addConstraint(Sketcher.Constraint("Vertical", 4, 1, 7, 1))
sketch11.addConstraint(Sketcher.Constraint("Radius", 1, 1.5))
sketch11.addConstraint(Sketcher.Constraint("DistanceY", 0, 2, 0, 1, 15.0))
sketch11.addConstraint(Sketcher.Constraint("DistanceX", -1, 1, 1, 3, 197.0))
sketch11.addConstraint(Sketcher.Constraint("DistanceX", -1, 1, 4, 3, 191.0))
sketch11.addConstraint(Sketcher.Constraint("DistanceX", -1, 1, 10, 3, 185.0))
sketch11.addConstraint(Sketcher.Constraint("DistanceY", -1, 1, 4, 1, 10.0))
sketch11.setExpression("Constraints[30]", "Params.sketch11_radius")
sketch11.setExpression("Constraints[31]", "Params.sketch11_height")
pocket8 = doc.addObject("PartDesign::Pocket", "Pocket007")
body.addObject(pocket8)
pocket8.Profile = sketch11
pocket8.setExpression("Length", "Params.pocket8_length")
pocket8.Reversed = True

# Sketch on XZ plane
sketch12 = doc.addObject("Sketcher::SketchObject", "Sketch011")
body.addObject(sketch12)
sketch12.AttachmentSupport = (doc.XZ_Plane, [""])
sketch12.MapMode = "FlatFace"
sketch12.AttachmentOffset = App.Placement(V(0, 0, -45), App.Rotation())
sketch12.addGeometry(Part.ArcOfCircle(Part.Circle(V(125, 4, 0), V(0, 0, 1), 1.6), math.radians(-90), math.radians(0)), False)
sketch12.addGeometry(Part.ArcOfCircle(Part.Circle(V(125, 4, 0), V(0, 0, 1), 1.6), math.radians(90), math.radians(270)), False)
sketch12.addGeometry(Part.ArcOfCircle(Part.Circle(V(125, 4, 0), V(0, 0, 1), 1.6), math.radians(0), math.radians(90)), False)
sketch12.addConstraint(Sketcher.Constraint("Tangent", 0, 1, 1, 2))
sketch12.addConstraint(Sketcher.Constraint("Tangent", 1, 1, 2, 2))
sketch12.addConstraint(Sketcher.Constraint("Tangent", 2, 1, 0, 2))
sketch12.addConstraint(Sketcher.Constraint("Horizontal", 1, 3, 2, 1))
sketch12.addConstraint(Sketcher.Constraint("Vertical", 2, 3, 0, 1))
sketch12.addConstraint(Sketcher.Constraint("Vertical", 0, 1, 1, 1))
sketch12.addConstraint(Sketcher.Constraint("Radius", 0, 1.6))
sketch12.addConstraint(Sketcher.Constraint("DistanceX", -1, 1, 0, 3, 125.0))
sketch12.addConstraint(Sketcher.Constraint("DistanceY", -1, 1, 0, 3, 4.0))
sketch12.setExpression("Constraints[6]", "Params.sketch12_radius")
pocket9 = doc.addObject("PartDesign::Pocket", "Pocket008")
body.addObject(pocket9)
pocket9.Profile = sketch12
pocket9.setExpression("Length", "Params.pocket9_length")
pocket9.Reversed = True

doc.recompute()
